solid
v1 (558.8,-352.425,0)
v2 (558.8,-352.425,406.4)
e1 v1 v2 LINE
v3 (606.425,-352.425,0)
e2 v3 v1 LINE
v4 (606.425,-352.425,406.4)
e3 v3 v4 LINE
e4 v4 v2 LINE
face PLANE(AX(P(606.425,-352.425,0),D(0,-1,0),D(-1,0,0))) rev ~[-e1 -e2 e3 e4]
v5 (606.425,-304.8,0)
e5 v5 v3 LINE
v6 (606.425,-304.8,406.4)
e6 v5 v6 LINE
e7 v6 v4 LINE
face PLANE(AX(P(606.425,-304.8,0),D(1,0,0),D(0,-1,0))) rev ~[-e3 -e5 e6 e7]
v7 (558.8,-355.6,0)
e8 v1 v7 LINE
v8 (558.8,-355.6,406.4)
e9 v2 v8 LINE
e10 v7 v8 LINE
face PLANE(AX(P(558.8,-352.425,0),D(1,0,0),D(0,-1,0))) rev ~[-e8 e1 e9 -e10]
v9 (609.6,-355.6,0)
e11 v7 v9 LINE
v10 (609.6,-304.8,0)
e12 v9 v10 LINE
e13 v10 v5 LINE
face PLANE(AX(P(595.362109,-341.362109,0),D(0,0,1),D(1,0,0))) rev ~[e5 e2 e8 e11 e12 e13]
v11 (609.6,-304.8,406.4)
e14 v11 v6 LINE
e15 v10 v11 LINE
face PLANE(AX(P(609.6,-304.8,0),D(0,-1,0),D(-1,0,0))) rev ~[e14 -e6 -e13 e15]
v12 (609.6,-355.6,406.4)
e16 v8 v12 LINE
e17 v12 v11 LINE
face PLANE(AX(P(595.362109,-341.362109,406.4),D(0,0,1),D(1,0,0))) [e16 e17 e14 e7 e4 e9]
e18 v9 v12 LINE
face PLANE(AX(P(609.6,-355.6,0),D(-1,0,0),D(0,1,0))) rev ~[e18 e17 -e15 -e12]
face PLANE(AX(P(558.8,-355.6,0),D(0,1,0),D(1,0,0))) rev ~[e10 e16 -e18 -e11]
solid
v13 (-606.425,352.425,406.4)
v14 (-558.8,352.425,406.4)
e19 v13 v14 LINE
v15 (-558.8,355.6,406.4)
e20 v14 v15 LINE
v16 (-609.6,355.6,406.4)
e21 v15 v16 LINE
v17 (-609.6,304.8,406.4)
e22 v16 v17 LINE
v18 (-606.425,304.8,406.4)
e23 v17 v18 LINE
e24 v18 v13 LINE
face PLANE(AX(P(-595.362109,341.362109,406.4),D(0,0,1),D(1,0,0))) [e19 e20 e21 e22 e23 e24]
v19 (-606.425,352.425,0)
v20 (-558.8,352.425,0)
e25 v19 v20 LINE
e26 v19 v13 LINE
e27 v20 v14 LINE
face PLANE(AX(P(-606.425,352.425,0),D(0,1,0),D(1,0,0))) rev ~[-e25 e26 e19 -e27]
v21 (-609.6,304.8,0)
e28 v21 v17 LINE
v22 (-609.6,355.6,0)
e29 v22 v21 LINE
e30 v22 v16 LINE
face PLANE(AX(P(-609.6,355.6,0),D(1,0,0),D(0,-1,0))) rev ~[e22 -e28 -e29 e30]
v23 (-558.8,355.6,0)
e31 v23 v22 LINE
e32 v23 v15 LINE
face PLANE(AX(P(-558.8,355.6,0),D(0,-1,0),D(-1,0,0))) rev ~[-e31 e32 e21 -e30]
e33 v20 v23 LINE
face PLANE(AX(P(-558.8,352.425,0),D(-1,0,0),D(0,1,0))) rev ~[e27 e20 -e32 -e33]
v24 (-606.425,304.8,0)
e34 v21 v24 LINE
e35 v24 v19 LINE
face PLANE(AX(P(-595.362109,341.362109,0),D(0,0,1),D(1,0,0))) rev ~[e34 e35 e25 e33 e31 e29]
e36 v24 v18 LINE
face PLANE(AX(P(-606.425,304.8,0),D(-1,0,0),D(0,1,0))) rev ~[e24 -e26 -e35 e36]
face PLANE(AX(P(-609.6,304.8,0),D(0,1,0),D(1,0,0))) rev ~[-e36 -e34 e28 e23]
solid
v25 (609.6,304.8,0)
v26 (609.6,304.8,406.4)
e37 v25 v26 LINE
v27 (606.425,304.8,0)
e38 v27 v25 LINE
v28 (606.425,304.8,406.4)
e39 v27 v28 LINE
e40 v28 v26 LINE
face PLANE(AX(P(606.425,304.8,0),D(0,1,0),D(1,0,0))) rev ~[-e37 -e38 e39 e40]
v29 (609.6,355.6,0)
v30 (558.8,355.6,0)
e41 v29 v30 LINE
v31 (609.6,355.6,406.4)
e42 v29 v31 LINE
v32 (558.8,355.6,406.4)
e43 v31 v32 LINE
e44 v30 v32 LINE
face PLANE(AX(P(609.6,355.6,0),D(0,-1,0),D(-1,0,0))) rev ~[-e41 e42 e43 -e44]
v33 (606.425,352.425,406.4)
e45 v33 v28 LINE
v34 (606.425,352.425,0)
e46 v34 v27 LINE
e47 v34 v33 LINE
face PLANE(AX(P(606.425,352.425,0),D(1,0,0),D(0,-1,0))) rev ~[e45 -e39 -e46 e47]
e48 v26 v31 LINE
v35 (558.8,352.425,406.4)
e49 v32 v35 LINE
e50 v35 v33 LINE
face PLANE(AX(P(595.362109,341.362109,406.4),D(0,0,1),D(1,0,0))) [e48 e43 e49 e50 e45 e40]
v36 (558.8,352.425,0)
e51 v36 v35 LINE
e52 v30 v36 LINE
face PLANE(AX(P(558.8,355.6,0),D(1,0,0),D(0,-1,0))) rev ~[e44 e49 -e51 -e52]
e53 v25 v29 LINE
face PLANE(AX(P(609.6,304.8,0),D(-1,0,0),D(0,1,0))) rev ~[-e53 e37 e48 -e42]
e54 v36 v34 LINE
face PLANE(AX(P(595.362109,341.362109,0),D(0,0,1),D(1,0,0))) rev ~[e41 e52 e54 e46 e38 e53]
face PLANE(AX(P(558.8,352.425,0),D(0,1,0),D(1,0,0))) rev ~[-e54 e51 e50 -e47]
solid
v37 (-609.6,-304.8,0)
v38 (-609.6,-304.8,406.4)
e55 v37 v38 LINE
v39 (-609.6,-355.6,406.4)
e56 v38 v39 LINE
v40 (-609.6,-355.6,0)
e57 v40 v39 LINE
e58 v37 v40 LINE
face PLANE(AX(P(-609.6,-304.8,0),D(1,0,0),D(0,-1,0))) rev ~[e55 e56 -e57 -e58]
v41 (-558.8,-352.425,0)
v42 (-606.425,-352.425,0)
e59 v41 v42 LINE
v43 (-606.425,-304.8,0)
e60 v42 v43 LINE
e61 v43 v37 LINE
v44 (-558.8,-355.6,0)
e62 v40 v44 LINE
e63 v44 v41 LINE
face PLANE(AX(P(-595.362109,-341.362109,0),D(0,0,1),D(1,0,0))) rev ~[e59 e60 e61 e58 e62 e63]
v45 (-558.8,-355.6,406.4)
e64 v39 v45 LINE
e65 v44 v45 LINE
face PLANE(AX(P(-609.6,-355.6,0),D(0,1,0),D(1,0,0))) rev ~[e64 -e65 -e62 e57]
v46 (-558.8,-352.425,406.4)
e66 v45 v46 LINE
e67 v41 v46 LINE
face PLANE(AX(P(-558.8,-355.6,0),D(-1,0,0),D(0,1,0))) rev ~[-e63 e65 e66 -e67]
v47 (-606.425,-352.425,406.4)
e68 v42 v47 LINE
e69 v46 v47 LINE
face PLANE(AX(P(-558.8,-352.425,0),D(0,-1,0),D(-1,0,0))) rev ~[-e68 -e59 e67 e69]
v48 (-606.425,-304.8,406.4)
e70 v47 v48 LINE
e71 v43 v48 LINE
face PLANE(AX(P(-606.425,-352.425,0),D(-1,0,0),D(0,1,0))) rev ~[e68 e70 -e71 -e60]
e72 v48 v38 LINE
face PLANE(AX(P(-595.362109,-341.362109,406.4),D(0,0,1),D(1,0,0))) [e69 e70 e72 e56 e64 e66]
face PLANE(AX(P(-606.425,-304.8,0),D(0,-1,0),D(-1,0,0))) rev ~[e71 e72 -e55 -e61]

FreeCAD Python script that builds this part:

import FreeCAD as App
import Part
import Sketcher

V = App.Vector
Q = App.Units.Quantity

doc = App.newDocument("Part")
body = doc.addObject("PartDesign::Body", "Body")
body.AllowCompound = True

# Sketch on XY plane
sketch1 = body.newObject("Sketcher::SketchObject", "Sketch")
sketch1.AttachmentSupport = (doc.getObject("XY_Plane"), [""])
sketch1.MapMode = "FlatFace"
sketch1.addGeometry([
    Part.LineSegment(V(-558.8, 355.6, 0), V(-609.6, 355.6, 0)),  # 0
    Part.LineSegment(V(-609.6, 355.6, 0), V(-609.6, 304.8, 0)),  # 1
    Part.LineSegment(V(-609.6, 304.8, 0), V(-606.4, 304.8, 0)),  # 2
    Part.LineSegment(V(-606.4, 304.8, 0), V(-606.4, 352.4, 0)),  # 3
    Part.LineSegment(V(-606.4, 352.4, 0), V(-558.8, 352.4, 0)),  # 4
    Part.LineSegment(V(-558.8, 352.4, 0), V(-558.8, 355.6, 0)),  # 5
    Part.LineSegment(V(-609.6, -304.8, 0), V(-609.6, -355.6, 0)),  # 6
    Part.LineSegment(V(-609.6, -355.6, 0), V(-558.8, -355.6, 0)),  # 7
    Part.LineSegment(V(-558.8, -355.6, 0), V(-558.8, -352.4, 0)),  # 8
    Part.LineSegment(V(-558.8, -352.4, 0), V(-606.4, -352.4, 0)),  # 9
    Part.LineSegment(V(-606.4, -352.4, 0), V(-606.4, -304.8, 0)),  # 10
    Part.LineSegment(V(-606.4, -304.8, 0), V(-609.6, -304.8, 0)),  # 11
    Part.LineSegment(V(558.8, -355.6, 0), V(609.6, -355.6, 0)),  # 12
    Part.LineSegment(V(609.6, -355.6, 0), V(609.6, -304.8, 0)),  # 13
    Part.LineSegment(V(609.6, -304.8, 0), V(606.4, -304.8, 0)),  # 14
    Part.LineSegment(V(606.4, -304.8, 0), V(606.4, -352.4, 0)),  # 15
    Part.LineSegment(V(606.4, -352.4, 0), V(558.8, -352.4, 0)),  # 16
    Part.LineSegment(V(558.8, -352.4, 0), V(558.8, -355.6, 0)),  # 17
    Part.LineSegment(V(609.6, 304.8, 0), V(609.6, 355.6, 0)),  # 18
    Part.LineSegment(V(609.6, 355.6, 0), V(558.8, 355.6, 0)),  # 19
    Part.LineSegment(V(558.8, 355.6, 0), V(558.8, 352.4, 0)),  # 20
    Part.LineSegment(V(558.8, 352.4, 0), V(606.4, 352.4, 0)),  # 21
    Part.LineSegment(V(606.4, 352.4, 0), V(606.4, 304.8, 0)),  # 22
    Part.LineSegment(V(606.4, 304.8, 0), V(609.6, 304.8, 0)),  # 23
], False)
sketch1.addConstraint([
    Sketcher.Constraint("Coincident", 0, 2, 1, 1),
    Sketcher.Constraint("Coincident", 1, 2, 2, 1),
    Sketcher.Constraint("Coincident", 2, 2, 3, 1),
    Sketcher.Constraint("Coincident", 3, 2, 4, 1),
    Sketcher.Constraint("Coincident", 4, 2, 5, 1),
    Sketcher.Constraint("Coincident", 5, 2, 0, 1),
    Sketcher.Constraint("Coincident", 6, 2, 7, 1),
    Sketcher.Constraint("Coincident", 7, 2, 8, 1),
    Sketcher.Constraint("Coincident", 8, 2, 9, 1),
    Sketcher.Constraint("Coincident", 9, 2, 10, 1),
    Sketcher.Constraint("Coincident", 10, 2, 11, 1),
    Sketcher.Constraint("Coincident", 11, 2, 6, 1),
    Sketcher.Constraint("Coincident", 12, 2, 13, 1),
    Sketcher.Constraint("Coincident", 13, 2, 14, 1),
    Sketcher.Constraint("Coincident", 14, 2, 15, 1),
    Sketcher.Constraint("Coincident", 15, 2, 16, 1),
    Sketcher.Constraint("Coincident", 16, 2, 17, 1),
    Sketcher.Constraint("Coincident", 17, 2, 12, 1),
    Sketcher.Constraint("Coincident", 18, 2, 19, 1),
    Sketcher.Constraint("Coincident", 19, 2, 20, 1),
    Sketcher.Constraint("Coincident", 20, 2, 21, 1),
    Sketcher.Constraint("Coincident", 21, 2, 22, 1),
    Sketcher.Constraint("Coincident", 22, 2, 23, 1),
    Sketcher.Constraint("Coincident", 23, 2, 18, 1),
    Sketcher.Constraint("Horizontal", 0),
    Sketcher.Constraint("Vertical", 1),
    Sketcher.Constraint("Horizontal", 2),
    Sketcher.Constraint("Vertical", 3),
    Sketcher.Constraint("Horizontal", 4),
    Sketcher.Constraint("Vertical", 5),
    Sketcher.Constraint("Vertical", 6),
    Sketcher.Constraint("Horizontal", 7),
    Sketcher.Constraint("Vertical", 8),
    Sketcher.Constraint("Horizontal", 9),
    Sketcher.Constraint("Vertical", 10),
    Sketcher.Constraint("Horizontal", 11),
    Sketcher.Constraint("Horizontal", 12),
    Sketcher.Constraint("Vertical", 13),
    Sketcher.Constraint("Horizontal", 14),
    Sketcher.Constraint("Vertical", 15),
    Sketcher.Constraint("Horizontal", 16),
    Sketcher.Constraint("Vertical", 17),
    Sketcher.Constraint("Vertical", 18),
    Sketcher.Constraint("Horizontal", 19),
    Sketcher.Constraint("Vertical", 20),
    Sketcher.Constraint("Horizontal", 21),
    Sketcher.Constraint("Vertical", 22),
    Sketcher.Constraint("Horizontal", 23),
    Sketcher.Constraint("Symmetric", 0, 2, 12, 2, -1, 1),
    Sketcher.Constraint("Symmetric", 2, 2, 14, 2, -1, 1),
    Sketcher.Constraint("Symmetric", 4, 2, 16, 2, -1, 1),
    Sketcher.Constraint("Symmetric", 6, 2, 18, 2, -1, 1),
    Sketcher.Constraint("Symmetric", 8, 2, 20, 2, -1, 1),
    Sketcher.Constraint("Symmetric", 10, 2, 22, 2, -1, 1),
    Sketcher.Constraint("Symmetric", 6, 2, 12, 2, -2),
    Sketcher.Constraint("Symmetric", 10, 2, 14, 2, -2),
    Sketcher.Constraint("Symmetric", 8, 2, 16, 2, -2),
    Sketcher.Constraint("Equal", 19, 1),
    Sketcher.Constraint("Equal", 21, 3),
    Sketcher.Constraint("DistanceX", 0, 2, 0, 1, Q("2 in")),
    Sketcher.Constraint("DistanceX", 0, 2, -1, 1, Q("24 in")),
    Sketcher.Constraint("DistanceY", -1, 1, 0, 2, Q("14 in")),
    Sketcher.Constraint("DistanceX", 2, 1, 2, 2, Q("0.125 in")),
])
pad1 = body.newObject("PartDesign::Pad", "Pad")
pad1.Profile = sketch1
pad1.Length = Q("16 in")

doc.recompute()
